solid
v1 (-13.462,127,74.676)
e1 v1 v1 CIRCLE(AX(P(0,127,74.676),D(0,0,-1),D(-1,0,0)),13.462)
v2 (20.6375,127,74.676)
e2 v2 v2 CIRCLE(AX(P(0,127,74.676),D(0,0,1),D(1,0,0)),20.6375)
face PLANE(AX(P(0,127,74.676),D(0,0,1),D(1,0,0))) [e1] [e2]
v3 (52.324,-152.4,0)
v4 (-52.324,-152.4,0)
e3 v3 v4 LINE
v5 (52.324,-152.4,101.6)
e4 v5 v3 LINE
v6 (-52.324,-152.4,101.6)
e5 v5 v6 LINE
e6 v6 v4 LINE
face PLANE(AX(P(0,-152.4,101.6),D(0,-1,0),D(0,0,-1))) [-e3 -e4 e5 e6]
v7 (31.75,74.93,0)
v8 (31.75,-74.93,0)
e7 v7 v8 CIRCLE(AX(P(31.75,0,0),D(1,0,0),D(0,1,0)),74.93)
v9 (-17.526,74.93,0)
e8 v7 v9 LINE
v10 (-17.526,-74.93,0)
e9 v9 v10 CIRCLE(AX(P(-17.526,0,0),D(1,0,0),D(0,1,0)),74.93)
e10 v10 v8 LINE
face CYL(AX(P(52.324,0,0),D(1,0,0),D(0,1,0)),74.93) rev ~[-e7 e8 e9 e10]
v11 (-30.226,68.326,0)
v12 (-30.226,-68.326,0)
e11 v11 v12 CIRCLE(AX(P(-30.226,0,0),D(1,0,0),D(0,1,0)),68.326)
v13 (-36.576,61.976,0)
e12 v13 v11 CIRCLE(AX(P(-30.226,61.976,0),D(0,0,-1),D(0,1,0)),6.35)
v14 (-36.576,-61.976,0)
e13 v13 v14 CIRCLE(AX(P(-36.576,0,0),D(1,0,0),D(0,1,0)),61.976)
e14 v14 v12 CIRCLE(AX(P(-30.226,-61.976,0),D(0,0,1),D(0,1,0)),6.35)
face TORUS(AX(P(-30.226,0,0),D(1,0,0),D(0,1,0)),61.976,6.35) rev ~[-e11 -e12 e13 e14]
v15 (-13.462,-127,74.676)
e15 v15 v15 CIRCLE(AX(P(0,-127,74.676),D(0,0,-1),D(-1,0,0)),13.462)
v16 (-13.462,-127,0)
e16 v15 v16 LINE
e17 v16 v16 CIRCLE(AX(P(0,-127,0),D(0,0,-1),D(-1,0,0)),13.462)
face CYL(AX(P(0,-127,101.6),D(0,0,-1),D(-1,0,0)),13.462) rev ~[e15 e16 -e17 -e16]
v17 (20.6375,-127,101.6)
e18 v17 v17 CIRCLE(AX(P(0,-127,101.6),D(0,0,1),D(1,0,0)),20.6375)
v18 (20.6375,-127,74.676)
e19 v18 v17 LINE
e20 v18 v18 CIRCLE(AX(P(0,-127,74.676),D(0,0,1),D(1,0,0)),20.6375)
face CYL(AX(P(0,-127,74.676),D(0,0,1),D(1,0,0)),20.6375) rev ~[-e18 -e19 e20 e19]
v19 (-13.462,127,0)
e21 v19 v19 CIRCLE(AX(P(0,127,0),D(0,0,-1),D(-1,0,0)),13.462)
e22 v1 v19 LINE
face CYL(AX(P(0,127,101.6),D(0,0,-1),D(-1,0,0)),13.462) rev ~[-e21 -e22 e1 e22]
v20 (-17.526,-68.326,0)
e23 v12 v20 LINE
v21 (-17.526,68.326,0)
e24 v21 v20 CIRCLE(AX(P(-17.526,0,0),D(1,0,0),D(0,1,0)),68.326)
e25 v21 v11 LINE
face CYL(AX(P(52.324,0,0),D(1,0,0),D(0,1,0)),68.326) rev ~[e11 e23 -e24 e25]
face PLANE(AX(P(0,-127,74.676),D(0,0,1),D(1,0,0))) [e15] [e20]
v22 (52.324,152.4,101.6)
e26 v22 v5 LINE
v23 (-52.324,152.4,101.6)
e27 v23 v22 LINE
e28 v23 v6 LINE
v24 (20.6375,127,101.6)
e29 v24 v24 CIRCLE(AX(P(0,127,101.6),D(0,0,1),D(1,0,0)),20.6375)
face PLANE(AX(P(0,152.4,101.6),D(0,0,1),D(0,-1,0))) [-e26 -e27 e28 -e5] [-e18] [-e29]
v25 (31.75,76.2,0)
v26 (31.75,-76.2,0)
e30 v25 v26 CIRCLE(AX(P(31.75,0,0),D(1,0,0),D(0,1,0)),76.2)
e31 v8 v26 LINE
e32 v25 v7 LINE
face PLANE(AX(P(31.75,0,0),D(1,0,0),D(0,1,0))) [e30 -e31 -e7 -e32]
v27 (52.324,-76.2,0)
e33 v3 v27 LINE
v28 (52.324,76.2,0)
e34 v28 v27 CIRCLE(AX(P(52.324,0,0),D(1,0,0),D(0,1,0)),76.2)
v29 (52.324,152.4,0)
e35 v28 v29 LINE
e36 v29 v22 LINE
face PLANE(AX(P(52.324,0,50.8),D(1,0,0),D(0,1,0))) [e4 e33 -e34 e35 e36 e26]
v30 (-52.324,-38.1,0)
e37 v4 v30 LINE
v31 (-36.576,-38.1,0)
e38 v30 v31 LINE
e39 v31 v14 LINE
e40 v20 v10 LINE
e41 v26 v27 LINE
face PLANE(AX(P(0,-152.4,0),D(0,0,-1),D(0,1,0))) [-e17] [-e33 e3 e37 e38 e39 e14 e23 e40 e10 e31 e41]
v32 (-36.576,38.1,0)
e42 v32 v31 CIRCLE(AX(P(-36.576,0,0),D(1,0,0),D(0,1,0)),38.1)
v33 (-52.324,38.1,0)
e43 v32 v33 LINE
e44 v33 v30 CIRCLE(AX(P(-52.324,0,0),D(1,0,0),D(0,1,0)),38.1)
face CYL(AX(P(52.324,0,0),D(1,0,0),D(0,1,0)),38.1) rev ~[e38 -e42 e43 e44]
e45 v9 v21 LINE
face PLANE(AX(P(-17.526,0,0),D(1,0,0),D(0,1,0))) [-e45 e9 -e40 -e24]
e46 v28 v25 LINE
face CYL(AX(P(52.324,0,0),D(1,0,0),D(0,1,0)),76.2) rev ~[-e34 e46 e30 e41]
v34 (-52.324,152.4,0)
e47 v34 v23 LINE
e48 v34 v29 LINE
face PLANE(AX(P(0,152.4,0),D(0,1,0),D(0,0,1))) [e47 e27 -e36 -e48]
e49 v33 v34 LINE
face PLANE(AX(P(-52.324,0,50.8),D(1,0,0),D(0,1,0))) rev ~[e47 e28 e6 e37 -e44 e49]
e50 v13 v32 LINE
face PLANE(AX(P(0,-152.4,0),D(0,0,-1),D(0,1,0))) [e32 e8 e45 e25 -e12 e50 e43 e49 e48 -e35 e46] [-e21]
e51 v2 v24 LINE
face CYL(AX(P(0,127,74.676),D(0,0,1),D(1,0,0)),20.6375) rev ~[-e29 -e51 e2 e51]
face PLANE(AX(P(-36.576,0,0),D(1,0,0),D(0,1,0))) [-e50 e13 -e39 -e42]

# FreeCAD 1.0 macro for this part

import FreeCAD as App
import Part
import Sketcher

V = App.Vector
Q = App.Units.Quantity


def edges_at(feature, points):
    """Names of the edges that pass closest to the given points."""
    edges = feature.Shape.Edges
    near = lambda p: min(range(len(edges)), key=lambda i: edges[i].distToShape(Part.Vertex(*p))[0])
    return sorted({f"Edge{near(p) + 1}" for p in points})


def add_polygon(sketch, points):
    """Adds a closed chain of lines whose ends are joined by coincident constraints."""
    first, n = sketch.GeometryCount, len(points)
    for a, b in zip(points, points[1:] + points[:1]):
        sketch.addGeometry(Part.LineSegment(App.Vector(*a, 0), App.Vector(*b, 0)), False)
    for i in range(n):
        sketch.addConstraint(Sketcher.Constraint("Coincident", first + i, 2, first + (i + 1) % n, 1))

doc = App.newDocument("Part")
params = doc.addObject("Spreadsheet::Sheet", "Params")
for row, (alias, value) in enumerate([
    ("sketch1_width", "12 in"),
    ("sketch1_height", "4 in"),
    ("pad1_length", "4.12 in"),
    ("sketch2_diameter", "3 in"),
    ("sketch3_diameter", "5.38 in"),
    ("pocket2_length", "3.5 in"),
    ("fillet_radius", "0.25 in"),
    ("sketch4_diameter", "5.9 in"),
    ("pocket3_length", "2.75 in"),
    ("sketch5_diameter", "6 in"),
    ("pocket4_length", "0.81 in"),
    ("sketch6_diameter", "1.06 in"),
    ("hole_diameter", "1.06 in"),
    ("hole_cbore_diameter", "1.625 in"),
    ("hole_cbore_depth", "1.06 in"),
], start=1):
    params.set(f"A{row}", alias)
    params.set(f"B{row}", "=" + value)
    params.setAlias(f"B{row}", alias)

body = doc.addObject("PartDesign::Body", "Body")

sketch1 = doc.addObject("Sketcher::SketchObject", "Sketch")
body.addObject(sketch1)
sketch1.AttachmentSupport = (doc.YZ_Plane, [""])
sketch1.MapMode = "FlatFace"
add_polygon(sketch1, [(-152, 0), (152, 0), (152, 102), (-152, 102)])
sketch1.addConstraint([
    Sketcher.Constraint("Horizontal", 0),
    Sketcher.Constraint("Vertical", 1),
    Sketcher.Constraint("Horizontal", 2),
    Sketcher.Constraint("Vertical", 3),
    Sketcher.Constraint("Symmetric", 0, 2, 3, 2, -1, 1),
    Sketcher.Constraint("DistanceX", 0, 1, 0, 2, Q("12 in")),
    Sketcher.Constraint("DistanceY", 1, 1, 1, 2, Q("4 in")),
])
sketch1.setExpression("Constraints[9]", "Params.sketch1_width")
sketch1.setExpression("Constraints[10]", "Params.sketch1_height")
pad1 = doc.addObject("PartDesign::Pad", "Pad")
body.addObject(pad1)
pad1.Profile = sketch1
pad1.setExpression("Length", "Params.pad1_length")
pad1.Midplane = True

sketch2 = doc.addObject("Sketcher::SketchObject", "Sketch001")
body.addObject(sketch2)
sketch2.AttachmentSupport = (doc.YZ_Plane, [""])
sketch2.MapMode = "FlatFace"
sketch2.AttachmentOffset = App.Placement(V(0, 0, 2.06 * 25.4), App.Rotation())
sketch2.addGeometry(Part.Circle(V(0, 0, 0), V(0, 0, 1), 38), False)
sketch2.addConstraint([
    Sketcher.Constraint("Coincident", 0, 3, -1, 1),
    Sketcher.Constraint("Diameter", 0, Q("3 in")),
])
sketch2.setExpression("Constraints[1]", "Params.sketch2_diameter")
pocket1 = doc.addObject("PartDesign::Pocket", "Pocket")
body.addObject(pocket1)
pocket1.Profile = sketch2
pocket1.Type = "ThroughAll"

sketch3 = doc.addObject("Sketcher::SketchObject", "Sketch002")
body.addObject(sketch3)
sketch3.AttachmentSupport = (doc.YZ_Plane, [""])
sketch3.MapMode = "FlatFace"
sketch3.AttachmentOffset = App.Placement(V(0, 0, 2.06 * 25.4), App.Rotation())
sketch3.addGeometry(Part.Circle(V(0, 0, 0), V(0, 0, 1), 68), False)
sketch3.addConstraint([
    Sketcher.Constraint("Coincident", 0, 3, -1, 1),
    Sketcher.Constraint("Diameter", 0, Q("5.38 in")),
])
sketch3.setExpression("Constraints[1]", "Params.sketch3_diameter")
pocket2 = doc.addObject("PartDesign::Pocket", "Pocket001")
body.addObject(pocket2)
pocket2.Profile = sketch3
pocket2.setExpression("Length", "Params.pocket2_length")
doc.recompute()

fillet = doc.addObject("PartDesign::Fillet", "Fillet")
body.addObject(fillet)
fillet.Base = (pocket2, edges_at(pocket2, [(-36.576, 0, 68.326)]))
fillet.setExpression("Radius", "Params.fillet_radius")

sketch4 = doc.addObject("Sketcher::SketchObject", "Sketch003")
body.addObject(sketch4)
sketch4.AttachmentSupport = (doc.YZ_Plane, [""])
sketch4.MapMode = "FlatFace"
sketch4.AttachmentOffset = App.Placement(V(0, 0, 2.06 * 25.4), App.Rotation())
sketch4.addGeometry(Part.Circle(V(0, 0, 0), V(0, 0, 1), 75), False)
sketch4.addConstraint([
    Sketcher.Constraint("Coincident", 0, 3, -1, 1),
    Sketcher.Constraint("Diameter", 0, Q("5.9 in")),
])
sketch4.setExpression("Constraints[1]", "Params.sketch4_diameter")
pocket3 = doc.addObject("PartDesign::Pocket", "Pocket002")
body.addObject(pocket3)
pocket3.Profile = sketch4
pocket3.setExpression("Length", "Params.pocket3_length")

sketch5 = doc.addObject("Sketcher::SketchObject", "Sketch004")
body.addObject(sketch5)
sketch5.AttachmentSupport = (doc.YZ_Plane, [""])
sketch5.MapMode = "FlatFace"
sketch5.AttachmentOffset = App.Placement(V(0, 0, 2.06 * 25.4), App.Rotation())
sketch5.addGeometry(Part.Circle(V(0, 0, 0), V(0, 0, 1), 76), False)
sketch5.addConstraint([
    Sketcher.Constraint("Coincident", 0, 3, -1, 1),
    Sketcher.Constraint("Diameter", 0, Q("6 in")),
])
sketch5.setExpression("Constraints[1]", "Params.sketch5_diameter")
pocket4 = doc.addObject("PartDesign::Pocket", "Pocket003")
body.addObject(pocket4)
pocket4.Profile = sketch5
pocket4.setExpression("Length", "Params.pocket4_length")

sketch6 = doc.addObject("Sketcher::SketchObject", "Sketch005")
body.addObject(sketch6)
sketch6.AttachmentSupport = (doc.XY_Plane, [""])
sketch6.MapMode = "FlatFace"
sketch6.AttachmentOffset = App.Placement(V(0, 0, 4 * 25.4), App.Rotation())
sketch6.addGeometry([
    Part.Circle(V(0, -127, 0), V(0, 0, 1), 13),
    Part.Circle(V(0, 127, 0), V(0, 0, 1), 13),
], False)
sketch6.addConstraint([
    Sketcher.Constraint("Equal", 0, 1),
    Sketcher.Constraint("Symmetric", 0, 3, 1, 3, -1, 1),
    Sketcher.Constraint("PointOnObject", 0, 3, -2),
    Sketcher.Constraint("Diameter", 0, Q("1.06 in")),
    Sketcher.Constraint("DistanceY", 0, 3, -1, 1, Q("5 in")),
])
sketch6.setExpression("Constraints[3]", "Params.sketch6_diameter")
doc.recompute()
hole = doc.addObject("PartDesign::Hole", "Hole")
body.addObject(hole)
hole.Profile = sketch6
hole.ThreadType = "None"
hole.setExpression("Diameter", "Params.hole_diameter")
hole.DepthType = "ThroughAll"
hole.HoleCutType = "Counterbore"
hole.setExpression("HoleCutDiameter", "Params.hole_cbore_diameter")
hole.setExpression("HoleCutDepth", "Params.hole_cbore_depth")

doc.recompute()
